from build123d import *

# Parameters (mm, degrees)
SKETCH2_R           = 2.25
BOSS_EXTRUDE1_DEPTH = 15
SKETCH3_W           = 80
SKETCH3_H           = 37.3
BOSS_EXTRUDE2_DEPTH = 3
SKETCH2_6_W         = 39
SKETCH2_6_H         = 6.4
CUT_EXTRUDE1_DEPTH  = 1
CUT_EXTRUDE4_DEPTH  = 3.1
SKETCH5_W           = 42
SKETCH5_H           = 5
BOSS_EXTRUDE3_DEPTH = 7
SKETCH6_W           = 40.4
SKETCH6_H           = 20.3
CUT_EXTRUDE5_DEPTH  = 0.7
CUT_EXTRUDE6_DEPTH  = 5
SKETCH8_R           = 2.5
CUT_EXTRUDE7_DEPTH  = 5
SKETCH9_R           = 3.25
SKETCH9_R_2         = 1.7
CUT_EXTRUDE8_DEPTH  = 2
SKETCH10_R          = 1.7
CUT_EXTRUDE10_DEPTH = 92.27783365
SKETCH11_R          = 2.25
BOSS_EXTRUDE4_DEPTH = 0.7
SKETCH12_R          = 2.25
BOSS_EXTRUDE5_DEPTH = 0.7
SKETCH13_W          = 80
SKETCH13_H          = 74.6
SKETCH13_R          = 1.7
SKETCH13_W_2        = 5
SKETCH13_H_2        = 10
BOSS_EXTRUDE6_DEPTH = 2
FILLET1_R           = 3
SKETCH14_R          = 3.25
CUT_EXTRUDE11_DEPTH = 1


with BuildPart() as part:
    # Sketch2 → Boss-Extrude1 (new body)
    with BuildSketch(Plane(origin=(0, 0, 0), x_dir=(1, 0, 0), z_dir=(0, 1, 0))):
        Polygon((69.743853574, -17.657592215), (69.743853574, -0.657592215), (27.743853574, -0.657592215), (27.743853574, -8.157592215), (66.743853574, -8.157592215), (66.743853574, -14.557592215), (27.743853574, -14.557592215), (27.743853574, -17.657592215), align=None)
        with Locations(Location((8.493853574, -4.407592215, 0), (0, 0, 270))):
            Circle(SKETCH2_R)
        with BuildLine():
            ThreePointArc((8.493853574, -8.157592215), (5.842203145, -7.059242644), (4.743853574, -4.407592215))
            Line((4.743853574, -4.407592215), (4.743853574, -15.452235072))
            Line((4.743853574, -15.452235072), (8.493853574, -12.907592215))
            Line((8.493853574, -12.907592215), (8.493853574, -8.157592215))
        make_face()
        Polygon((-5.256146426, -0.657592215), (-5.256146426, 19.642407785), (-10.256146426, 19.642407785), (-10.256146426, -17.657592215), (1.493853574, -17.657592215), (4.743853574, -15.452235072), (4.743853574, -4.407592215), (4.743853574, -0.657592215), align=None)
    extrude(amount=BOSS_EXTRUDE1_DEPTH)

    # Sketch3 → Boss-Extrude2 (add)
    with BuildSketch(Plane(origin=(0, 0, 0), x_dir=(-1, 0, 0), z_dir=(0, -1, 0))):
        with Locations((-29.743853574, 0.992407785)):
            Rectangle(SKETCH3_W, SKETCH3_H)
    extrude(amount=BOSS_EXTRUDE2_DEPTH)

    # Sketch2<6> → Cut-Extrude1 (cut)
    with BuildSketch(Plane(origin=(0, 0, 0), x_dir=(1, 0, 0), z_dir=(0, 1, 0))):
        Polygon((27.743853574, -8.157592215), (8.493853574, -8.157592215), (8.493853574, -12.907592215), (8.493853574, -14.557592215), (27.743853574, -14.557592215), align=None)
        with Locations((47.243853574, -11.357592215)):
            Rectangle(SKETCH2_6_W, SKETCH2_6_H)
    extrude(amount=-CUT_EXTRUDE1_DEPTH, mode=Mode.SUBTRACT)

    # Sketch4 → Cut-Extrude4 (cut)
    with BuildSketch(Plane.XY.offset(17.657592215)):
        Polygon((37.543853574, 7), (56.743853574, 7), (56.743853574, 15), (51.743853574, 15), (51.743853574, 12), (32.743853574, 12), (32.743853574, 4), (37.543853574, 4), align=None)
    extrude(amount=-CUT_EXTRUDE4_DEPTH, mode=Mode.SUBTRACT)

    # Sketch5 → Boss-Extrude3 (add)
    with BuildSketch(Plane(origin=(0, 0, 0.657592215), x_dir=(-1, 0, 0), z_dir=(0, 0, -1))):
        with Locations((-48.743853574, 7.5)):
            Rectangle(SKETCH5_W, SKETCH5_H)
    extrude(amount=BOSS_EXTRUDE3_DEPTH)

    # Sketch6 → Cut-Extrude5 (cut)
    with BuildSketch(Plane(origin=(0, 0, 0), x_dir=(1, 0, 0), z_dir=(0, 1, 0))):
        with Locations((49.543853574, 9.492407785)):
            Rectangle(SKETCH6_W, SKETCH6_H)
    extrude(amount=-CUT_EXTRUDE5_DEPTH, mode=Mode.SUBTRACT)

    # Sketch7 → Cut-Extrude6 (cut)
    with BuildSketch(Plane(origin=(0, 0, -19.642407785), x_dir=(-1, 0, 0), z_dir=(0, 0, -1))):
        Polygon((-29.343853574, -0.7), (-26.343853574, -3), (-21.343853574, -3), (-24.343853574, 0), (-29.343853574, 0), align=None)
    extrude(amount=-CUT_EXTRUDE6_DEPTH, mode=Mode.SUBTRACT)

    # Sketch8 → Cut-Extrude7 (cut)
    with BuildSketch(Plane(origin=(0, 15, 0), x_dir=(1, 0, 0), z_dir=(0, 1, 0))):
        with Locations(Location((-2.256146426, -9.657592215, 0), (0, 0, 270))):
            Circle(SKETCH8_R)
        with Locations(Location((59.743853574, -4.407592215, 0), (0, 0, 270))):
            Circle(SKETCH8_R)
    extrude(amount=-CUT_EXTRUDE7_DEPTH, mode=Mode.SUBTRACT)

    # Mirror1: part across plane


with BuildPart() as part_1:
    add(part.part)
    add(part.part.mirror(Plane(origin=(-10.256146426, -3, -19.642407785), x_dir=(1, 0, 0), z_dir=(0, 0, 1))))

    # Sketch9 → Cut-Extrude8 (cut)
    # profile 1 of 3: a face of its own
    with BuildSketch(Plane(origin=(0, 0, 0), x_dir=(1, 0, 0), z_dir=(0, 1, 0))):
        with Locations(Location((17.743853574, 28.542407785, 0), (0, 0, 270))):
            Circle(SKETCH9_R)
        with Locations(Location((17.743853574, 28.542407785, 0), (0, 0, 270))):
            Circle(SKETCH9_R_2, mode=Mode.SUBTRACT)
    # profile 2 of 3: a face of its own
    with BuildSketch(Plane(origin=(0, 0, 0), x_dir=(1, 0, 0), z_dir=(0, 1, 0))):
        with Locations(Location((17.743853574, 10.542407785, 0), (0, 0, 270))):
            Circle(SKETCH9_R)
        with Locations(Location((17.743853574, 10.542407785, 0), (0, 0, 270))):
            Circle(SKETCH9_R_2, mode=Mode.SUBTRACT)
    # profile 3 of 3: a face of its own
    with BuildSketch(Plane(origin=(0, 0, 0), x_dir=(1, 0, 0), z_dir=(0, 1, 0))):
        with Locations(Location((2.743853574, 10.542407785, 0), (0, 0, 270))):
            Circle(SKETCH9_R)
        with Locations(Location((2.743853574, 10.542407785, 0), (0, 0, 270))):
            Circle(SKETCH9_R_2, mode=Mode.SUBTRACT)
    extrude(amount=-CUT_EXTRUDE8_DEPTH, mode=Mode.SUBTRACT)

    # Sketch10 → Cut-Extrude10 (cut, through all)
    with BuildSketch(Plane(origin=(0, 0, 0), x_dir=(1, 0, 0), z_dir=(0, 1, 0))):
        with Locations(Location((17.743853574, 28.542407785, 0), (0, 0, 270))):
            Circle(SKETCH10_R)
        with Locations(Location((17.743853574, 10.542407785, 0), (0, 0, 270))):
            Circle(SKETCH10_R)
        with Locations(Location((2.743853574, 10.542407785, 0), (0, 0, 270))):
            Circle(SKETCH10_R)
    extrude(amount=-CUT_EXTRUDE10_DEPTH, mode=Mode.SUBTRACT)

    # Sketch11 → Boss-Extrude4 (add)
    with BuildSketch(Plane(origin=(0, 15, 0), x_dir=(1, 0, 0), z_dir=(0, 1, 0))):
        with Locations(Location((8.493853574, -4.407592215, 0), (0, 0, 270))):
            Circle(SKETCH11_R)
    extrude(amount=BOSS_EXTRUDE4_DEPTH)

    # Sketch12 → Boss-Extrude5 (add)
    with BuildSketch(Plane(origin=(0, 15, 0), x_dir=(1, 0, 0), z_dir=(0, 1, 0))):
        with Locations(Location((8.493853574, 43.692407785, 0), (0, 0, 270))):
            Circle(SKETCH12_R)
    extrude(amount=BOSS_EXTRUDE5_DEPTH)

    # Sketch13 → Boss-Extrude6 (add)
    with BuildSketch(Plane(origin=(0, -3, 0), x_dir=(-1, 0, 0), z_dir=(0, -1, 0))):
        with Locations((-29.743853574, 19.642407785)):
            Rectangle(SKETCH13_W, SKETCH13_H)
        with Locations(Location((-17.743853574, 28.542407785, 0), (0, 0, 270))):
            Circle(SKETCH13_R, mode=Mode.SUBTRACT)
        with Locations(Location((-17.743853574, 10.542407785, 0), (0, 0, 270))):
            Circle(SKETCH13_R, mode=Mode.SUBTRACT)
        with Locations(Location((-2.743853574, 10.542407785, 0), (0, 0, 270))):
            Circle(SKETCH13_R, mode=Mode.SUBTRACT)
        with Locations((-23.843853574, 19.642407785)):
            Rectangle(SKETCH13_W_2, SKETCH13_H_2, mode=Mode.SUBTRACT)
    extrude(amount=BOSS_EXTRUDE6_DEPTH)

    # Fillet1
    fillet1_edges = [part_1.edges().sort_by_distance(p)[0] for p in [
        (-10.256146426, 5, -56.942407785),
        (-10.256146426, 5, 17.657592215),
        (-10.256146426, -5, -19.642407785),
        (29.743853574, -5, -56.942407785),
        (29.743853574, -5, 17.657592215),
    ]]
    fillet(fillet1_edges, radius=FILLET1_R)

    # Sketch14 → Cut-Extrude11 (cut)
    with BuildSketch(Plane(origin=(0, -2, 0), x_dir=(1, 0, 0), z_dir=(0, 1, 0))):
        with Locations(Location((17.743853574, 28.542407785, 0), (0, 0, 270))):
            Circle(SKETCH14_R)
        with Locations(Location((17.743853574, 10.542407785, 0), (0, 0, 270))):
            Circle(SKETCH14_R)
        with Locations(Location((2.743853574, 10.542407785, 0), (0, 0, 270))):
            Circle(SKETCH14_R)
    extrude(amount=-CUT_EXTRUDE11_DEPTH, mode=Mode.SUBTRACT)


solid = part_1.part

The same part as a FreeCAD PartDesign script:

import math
import FreeCAD as App
import Part
import Sketcher
from FreeCAD import Vector
Q = App.Units.Quantity


def edges_at(feature, points):
    """Names of the edges that pass closest to the given points."""
    edges = feature.Shape.Edges
    near = lambda p: min(range(len(edges)), key=lambda i: edges[i].distToShape(Part.Vertex(*p))[0])
    return sorted({f"Edge{near(p) + 1}" for p in points})

doc = App.newDocument("Part")
body = doc.addObject("PartDesign::Body", "Body")
body.AllowCompound = True

# Sketch on XZ plane
sketch1 = body.newObject("Sketcher::SketchObject", "Sketch")
sketch1.AttachmentSupport = (doc.getObject("XZ_Plane"), [""])
sketch1.MapMode = "FlatFace"
sketch1.addGeometry([
    Part.LineSegment(Vector(69.7, 17.7, 0), Vector(69.7, 0.7, 0)),  # 0
    Part.LineSegment(Vector(69.7, 0.7, 0), Vector(27.7, 0.7, 0)),  # 1
    Part.LineSegment(Vector(27.7, 0.7, 0), Vector(27.7, 8.2, 0)),  # 2
    Part.LineSegment(Vector(27.7, 8.2, 0), Vector(66.7, 8.2, 0)),  # 3
    Part.LineSegment(Vector(66.7, 8.2, 0), Vector(66.7, 14.6, 0)),  # 4
    Part.LineSegment(Vector(66.7, 14.6, 0), Vector(27.7, 14.6, 0)),  # 5
    Part.LineSegment(Vector(27.7, 14.6, 0), Vector(27.7, 17.7, 0)),  # 6
    Part.LineSegment(Vector(27.7, 17.7, 0), Vector(69.7, 17.7, 0)),  # 7
    Part.Circle(Vector(8.5, 4.4, 0), Vector(0, 0, 1), 2.2),  # 8
    Part.ArcOfCircle(Part.Circle(Vector(8.5, 4.4, 0), Vector(0, 0, 1), 3.8), math.radians(90), math.radians(180)),  # 9
    Part.LineSegment(Vector(4.7, 4.4, 0), Vector(4.7, 0.7, 0)),  # 10
    Part.LineSegment(Vector(4.7, 0.7, 0), Vector(-5.3, 0.7, 0)),  # 11
    Part.LineSegment(Vector(-5.3, 0.7, 0), Vector(-5.3, -19.6, 0)),  # 12
    Part.LineSegment(Vector(-5.3, -19.6, 0), Vector(-10.3, -19.6, 0)),  # 13
    Part.LineSegment(Vector(-10.3, -19.6, 0), Vector(-10.3, 17.7, 0)),  # 14
    Part.LineSegment(Vector(-10.3, 17.7, 0), Vector(1.5, 17.7, 0)),  # 15
    Part.LineSegment(Vector(1.5, 17.7, 0), Vector(4.7, 15.5, 0)),  # 16
    Part.LineSegment(Vector(4.7, 15.5, 0), Vector(8.5, 12.9, 0)),  # 17
    Part.LineSegment(Vector(8.5, 12.9, 0), Vector(8.5, 8.2, 0)),  # 18
], False)
sketch1.addConstraint([
    Sketcher.Constraint("Coincident", 0, 2, 1, 1),
    Sketcher.Constraint("Coincident", 1, 2, 2, 1),
    Sketcher.Constraint("Coincident", 2, 2, 3, 1),
    Sketcher.Constraint("Coincident", 3, 2, 4, 1),
    Sketcher.Constraint("Coincident", 4, 2, 5, 1),
    Sketcher.Constraint("Coincident", 5, 2, 6, 1),
    Sketcher.Constraint("Coincident", 6, 2, 7, 1),
    Sketcher.Constraint("Coincident", 7, 2, 0, 1),
    Sketcher.Constraint("Tangent", 9, 2, 10, 1),
    Sketcher.Constraint("Coincident", 10, 2, 11, 1),
    Sketcher.Constraint("Coincident", 11, 2, 12, 1),
    Sketcher.Constraint("Coincident", 12, 2, 13, 1),
    Sketcher.Constraint("Coincident", 13, 2, 14, 1),
    Sketcher.Constraint("Coincident", 14, 2, 15, 1),
    Sketcher.Constraint("Coincident", 15, 2, 16, 1),
    Sketcher.Constraint("Coincident", 16, 2, 17, 1),
    Sketcher.Constraint("Coincident", 17, 2, 18, 1),
    Sketcher.Constraint("Coincident", 18, 2, 9, 1),
    Sketcher.Constraint("Vertical", 0),
    Sketcher.Constraint("Horizontal", 1),
    Sketcher.Constraint("Vertical", 2),
    Sketcher.Constraint("Horizontal", 3),
    Sketcher.Constraint("Vertical", 4),
    Sketcher.Constraint("Horizontal", 5),
    Sketcher.Constraint("Vertical", 6),
    Sketcher.Constraint("Horizontal", 7),
    Sketcher.Constraint("Vertical", 10),
    Sketcher.Constraint("Horizontal", 11),
    Sketcher.Constraint("Vertical", 12),
    Sketcher.Constraint("Horizontal", 13),
    Sketcher.Constraint("Vertical", 14),
    Sketcher.Constraint("Horizontal", 15),
    Sketcher.Constraint("Vertical", 18),
    Sketcher.Constraint("Coincident", 9, 3, 8, 3),
    Sketcher.Constraint("Parallel", 16, 17),
    Sketcher.Constraint("Horizontal", 1, 2, 10, 2),
    Sketcher.Constraint("Horizontal", 7, 2, 14, 2),
    Sketcher.Constraint("Horizontal", 3, 2, 18, 2),
    Sketcher.Constraint("Vertical", 2, 2, 5, 2),
    Sketcher.Constraint("Vertical", 10, 2, 16, 2),
    Sketcher.Constraint("Vertical", 9, 3, 17, 2),
    Sketcher.Constraint("Diameter", 8, 4.5),
    Sketcher.Constraint("DistanceX", 1, 2, 1, 1, 42.0),
    Sketcher.Constraint("DistanceX", 3, 1, 3, 2, 39.0),
    Sketcher.Constraint("DistanceX", 11, 2, 11, 1, 10.0),
    Sketcher.Constraint("DistanceX", 13, 2, 13, 1, 5.0),
    Sketcher.Constraint("DistanceY", 0, 2, 0, 1, 17.0),
    Sketcher.Constraint("Radius", 9, 3.75),
    Sketcher.Constraint("DistanceY", 2, 1, 2, 2, 7.5),
    Sketcher.Constraint("DistanceY", 4, 1, 4, 2, 6.4),
    Sketcher.Constraint("DistanceY", 12, 2, 12, 1, 20.3),
    Sketcher.Constraint("DistanceX", 9, 2, 1, 2, 23.0),
    Sketcher.Constraint("DistanceX", 15, 2, 8, 3, 7.0),
    Sketcher.Constraint("DistanceY", 18, 2, 18, 1, 4.75),
    Sketcher.Constraint("DistanceX", -1, 1, 8, 3, 8.493854),
    Sketcher.Constraint("DistanceY", -1, 1, 8, 3, 4.407592),
])
pad1 = body.newObject("PartDesign::Pad", "Pad")
pad1.Profile = sketch1
pad1.Length = 15
pad1.Reversed = True

# Sketch on XZ plane
sketch2 = body.newObject("Sketcher::SketchObject", "Sketch001")
sketch2.AttachmentSupport = (doc.getObject("XZ_Plane"), [""])
sketch2.MapMode = "FlatFace"
sketch2.addGeometry([
    Part.LineSegment(Vector(70, -20, 0), Vector(70, 18, 0)),
    Part.LineSegment(Vector(70, 18, 0), Vector(-10, 18, 0)),
    Part.LineSegment(Vector(-10, 18, 0), Vector(-10, -20, 0)),
    Part.LineSegment(Vector(-10, -20, 0), Vector(70, -20, 0)),
], False)
sketch2.addConstraint([
    Sketcher.Constraint("Coincident", 0, 2, 1, 1),
    Sketcher.Constraint("Coincident", 1, 2, 2, 1),
    Sketcher.Constraint("Coincident", 2, 2, 3, 1),
    Sketcher.Constraint("Coincident", 3, 2, 0, 1),
    Sketcher.Constraint("Vertical", 0),
    Sketcher.Constraint("Horizontal", 1),
    Sketcher.Constraint("Vertical", 2),
    Sketcher.Constraint("Horizontal", 3),
    Sketcher.Constraint("DistanceX", 1, 2, 1, 1, 80.0),
    Sketcher.Constraint("DistanceY", 0, 1, 0, 2, 37.3),
    Sketcher.Constraint("DistanceX", -1, 1, 0, 2, 69.743854),
    Sketcher.Constraint("DistanceY", -1, 1, 0, 2, 17.657592),
])
pad2 = body.newObject("PartDesign::Pad", "Pad001")
pad2.Profile = sketch2
pad2.Length = 3

# Sketch on XZ plane
sketch3 = body.newObject("Sketcher::SketchObject", "Sketch002")
sketch3.AttachmentSupport = (doc.getObject("XZ_Plane"), [""])
sketch3.MapMode = "FlatFace"
sketch3.addGeometry([
    Part.LineSegment(Vector(8, 8, 0), Vector(8, 15, 0)),
    Part.LineSegment(Vector(8, 15, 0), Vector(67, 15, 0)),
    Part.LineSegment(Vector(67, 15, 0), Vector(67, 8, 0)),
    Part.LineSegment(Vector(67, 8, 0), Vector(8, 8, 0)),
], False)
sketch3.addConstraint([
    Sketcher.Constraint("Coincident", 0, 2, 1, 1),
    Sketcher.Constraint("Coincident", 1, 2, 2, 1),
    Sketcher.Constraint("Coincident", 2, 2, 3, 1),
    Sketcher.Constraint("Coincident", 3, 2, 0, 1),
    Sketcher.Constraint("Vertical", 0),
    Sketcher.Constraint("Horizontal", 1),
    Sketcher.Constraint("Vertical", 2),
    Sketcher.Constraint("Horizontal", 3),
    Sketcher.Constraint("DistanceY", 0, 1, 0, 2, 6.4),
    Sketcher.Constraint("DistanceX", 1, 1, 1, 2, 58.25),
    Sketcher.Constraint("DistanceX", -1, 1, 0, 2, 8.493854),
    Sketcher.Constraint("DistanceY", -1, 1, 0, 2, 14.557592),
])
pocket1 = body.newObject("PartDesign::Pocket", "Pocket")
pocket1.Profile = sketch3
pocket1.Length = 1
pocket1.Reversed = True

# Sketch on XY plane
sketch4 = body.newObject("Sketcher::SketchObject", "Sketch003")
sketch4.AttachmentSupport = (doc.getObject("XY_Plane"), [""])
sketch4.MapMode = "FlatFace"
sketch4.AttachmentOffset = App.Placement(Vector(0, 0, 17.657592), App.Rotation())
sketch4.addGeometry([
    Part.LineSegment(Vector(37.5, 7, 0), Vector(56.7, 7, 0)),  # 0
    Part.LineSegment(Vector(56.7, 7, 0), Vector(56.7, 15, 0)),  # 1
    Part.LineSegment(Vector(56.7, 15, 0), Vector(51.7, 15, 0)),  # 2
    Part.LineSegment(Vector(51.7, 15, 0), Vector(51.7, 12, 0)),  # 3
    Part.LineSegment(Vector(51.7, 12, 0), Vector(32.7, 12, 0)),  # 4
    Part.LineSegment(Vector(32.7, 12, 0), Vector(32.7, 4, 0)),  # 5
    Part.LineSegment(Vector(32.7, 4, 0), Vector(37.5, 4, 0)),  # 6
    Part.LineSegment(Vector(37.5, 4, 0), Vector(37.5, 7, 0)),  # 7
], False)
sketch4.addConstraint([
    Sketcher.Constraint("Coincident", 0, 2, 1, 1),
    Sketcher.Constraint("Coincident", 1, 2, 2, 1),
    Sketcher.Constraint("Coincident", 2, 2, 3, 1),
    Sketcher.Constraint("Coincident", 3, 2, 4, 1),
    Sketcher.Constraint("Coincident", 4, 2, 5, 1),
    Sketcher.Constraint("Coincident", 5, 2, 6, 1),
    Sketcher.Constraint("Coincident", 6, 2, 7, 1),
    Sketcher.Constraint("Coincident", 7, 2, 0, 1),
    Sketcher.Constraint("Horizontal", 0),
    Sketcher.Constraint("Vertical", 1),
    Sketcher.Constraint("Horizontal", 2),
    Sketcher.Constraint("Vertical", 3),
    Sketcher.Constraint("Horizontal", 4),
    Sketcher.Constraint("Vertical", 5),
    Sketcher.Constraint("Horizontal", 6),
    Sketcher.Constraint("Vertical", 7),
    Sketcher.Constraint("Equal", 1, 5),
    Sketcher.Constraint("DistanceX", 2, 2, 2, 1, 5.0),
    Sketcher.Constraint("DistanceX", 4, 2, 4, 1, 19.0),
    Sketcher.Constraint("DistanceY", 1, 1, 1, 2, 8.0),
    Sketcher.Constraint("DistanceY", 3, 2, 3, 1, 3.0),
    Sketcher.Constraint("DistanceX", 0, 1, 0, 2, 19.2),
    Sketcher.Constraint("DistanceY", -1, 1, 0, 2, 7.0),
    Sketcher.Constraint("DistanceX", -1, 1, 0, 2, 56.743854),
])
pocket2 = body.newObject("PartDesign::Pocket", "Pocket001")
pocket2.Profile = sketch4
pocket2.Length = 3.1

# Sketch on XY plane
sketch5 = body.newObject("Sketcher::SketchObject", "Sketch004")
sketch5.AttachmentSupport = (doc.getObject("XY_Plane"), [""])
sketch5.MapMode = "FlatFace"
sketch5.AttachmentOffset = App.Placement(Vector(0, 0, 0.657592), App.Rotation())
sketch5.addGeometry([
    Part.LineSegment(Vector(70, 10, 0), Vector(70, 5, 0)),
    Part.LineSegment(Vector(70, 5, 0), Vector(28, 5, 0)),
    Part.LineSegment(Vector(28, 5, 0), Vector(28, 10, 0)),
    Part.LineSegment(Vector(28, 10, 0), Vector(70, 10, 0)),
], False)
sketch5.addConstraint([
    Sketcher.Constraint("Coincident", 0, 2, 1, 1),
    Sketcher.Constraint("Coincident", 1, 2, 2, 1),
    Sketcher.Constraint("Coincident", 2, 2, 3, 1),
    Sketcher.Constraint("Coincident", 3, 2, 0, 1),
    Sketcher.Constraint("Vertical", 0),
    Sketcher.Constraint("Horizontal", 1),
    Sketcher.Constraint("Vertical", 2),
    Sketcher.Constraint("Horizontal", 3),
    Sketcher.Constraint("DistanceX", 1, 2, 1, 1, 42.0),
    Sketcher.Constraint("DistanceY", 0, 2, 0, 1, 5.0),
    Sketcher.Constraint("DistanceY", -1, 1, 0, 2, 5.0),
    Sketcher.Constraint("DistanceX", -1, 1, 0, 2, 69.743854),
])
pad3 = body.newObject("PartDesign::Pad", "Pad002")
pad3.Profile = sketch5
pad3.Length = 7
pad3.Reversed = True

# Sketch on XZ plane
sketch6 = body.newObject("Sketcher::SketchObject", "Sketch005")
sketch6.AttachmentSupport = (doc.getObject("XZ_Plane"), [""])
sketch6.MapMode = "FlatFace"
sketch6.addGeometry([
    Part.LineSegment(Vector(29, -20, 0), Vector(29, 1, 0)),
    Part.LineSegment(Vector(29, 1, 0), Vector(70, 1, 0)),
    Part.LineSegment(Vector(70, 1, 0), Vector(70, -20, 0)),
    Part.LineSegment(Vector(70, -20, 0), Vector(29, -20, 0)),
], False)
sketch6.addConstraint([
    Sketcher.Constraint("Coincident", 0, 2, 1, 1),
    Sketcher.Constraint("Coincident", 1, 2, 2, 1),
    Sketcher.Constraint("Coincident", 2, 2, 3, 1),
    Sketcher.Constraint("Coincident", 3, 2, 0, 1),
    Sketcher.Constraint("Vertical", 0),
    Sketcher.Constraint("Horizontal", 1),
    Sketcher.Constraint("Vertical", 2),
    Sketcher.Constraint("Horizontal", 3),
    Sketcher.Constraint("DistanceX", 1, 1, 1, 2, 40.4),
    Sketcher.Constraint("DistanceY", 0, 1, 0, 2, 20.3),
    Sketcher.Constraint("DistanceX", -1, 1, 0, 2, 29.343854),
    Sketcher.Constraint("DistanceY", -1, 1, 0, 2, 0.657592),
])
pocket3 = body.newObject("PartDesign::Pocket", "Pocket002")
pocket3.Profile = sketch6
pocket3.Length = 0.7
pocket3.Reversed = True

# Sketch on XY plane
sketch7 = body.newObject("Sketcher::SketchObject", "Sketch006")
sketch7.AttachmentSupport = (doc.getObject("XY_Plane"), [""])
sketch7.MapMode = "FlatFace"
sketch7.AttachmentOffset = App.Placement(Vector(0, 0, -19.642408), App.Rotation())
sketch7.addGeometry([
    Part.LineSegment(Vector(29.3, -0.7, 0), Vector(26.3, -3, 0)),  # 0
    Part.LineSegment(Vector(26.3, -3, 0), Vector(21.3, -3, 0)),  # 1
    Part.LineSegment(Vector(21.3, -3, 0), Vector(24.3, 0, 0)),  # 2
    Part.LineSegment(Vector(24.3, 0, 0), Vector(29.3, 0, 0)),  # 3
    Part.LineSegment(Vector(29.3, 0, 0), Vector(29.3, -0.7, 0)),  # 4
], False)
sketch7.addConstraint([
    Sketcher.Constraint("Coincident", 0, 2, 1, 1),
    Sketcher.Constraint("Coincident", 1, 2, 2, 1),
    Sketcher.Constraint("Coincident", 2, 2, 3, 1),
    Sketcher.Constraint("Coincident", 3, 2, 4, 1),
    Sketcher.Constraint("Coincident", 4, 2, 0, 1),
    Sketcher.Constraint("Horizontal", 1),
    Sketcher.Constraint("Horizontal", 3),
    Sketcher.Constraint("Vertical", 4),
    Sketcher.Constraint("PointOnObject", 2, 2, -1),
    Sketcher.Constraint("Equal", 1, 3),
    Sketcher.Constraint("DistanceX", 1, 2, 1, 1, 5.0),
    Sketcher.Constraint("Angle", 2, Q("45 deg")),
    Sketcher.Constraint("DistanceY", 4, 2, 4, 1, 0.7),
    Sketcher.Constraint("DistanceY", 0, 2, -1, 1, 3.0),
    Sketcher.Constraint("DistanceX", -1, 1, 0, 2, 26.343854),
])
pocket4 = body.newObject("PartDesign::Pocket", "Pocket003")
pocket4.Profile = sketch7
pocket4.Length = 5
pocket4.Reversed = True

# Sketch on XZ plane
sketch8 = body.newObject("Sketcher::SketchObject", "Sketch007")
sketch8.AttachmentSupport = (doc.getObject("XZ_Plane"), [""])
sketch8.MapMode = "FlatFace"
sketch8.AttachmentOffset = App.Placement(Vector(0, 0, -15), App.Rotation())
sketch8.addGeometry([
    Part.Circle(Vector(-2.3, 9.7, 0), Vector(0, 0, 1), 2.5),
    Part.Circle(Vector(59.7, 4.4, 0), Vector(0, 0, 1), 2.5),
], False)
sketch8.addConstraint([
    Sketcher.Constraint("Equal", 0, 1),
    Sketcher.Constraint("Diameter", 0, 5.0),
    Sketcher.Constraint("DistanceX", 0, 3, 1, 3, 62.0),
    Sketcher.Constraint("DistanceY", 1, 3, 0, 3, 5.25),
    Sketcher.Constraint("DistanceX", 0, 3, -1, 1, 2.256146),
    Sketcher.Constraint("DistanceY", -1, 1, 0, 3, 9.657592),
])
pocket5 = body.newObject("PartDesign::Pocket", "Pocket004")
pocket5.Profile = sketch8
pocket5.Length = 5
pocket5.Reversed = True
body2 = doc.addObject("PartDesign::Body", "Body001")
doc.recompute()

body2.BaseFeature = body
doc.recompute()

mirroring = doc.addObject("Part::Mirroring", "Mirroring")
mirroring.Source = body
mirroring.Base = Vector(-10.256146, -3, -19.642408)
mirroring.Normal = Vector(0, 0, 1)
body3 = doc.addObject("PartDesign::Body", "Body002")
body3.BaseFeature = mirroring
boolean = body2.newObject("PartDesign::Boolean", "Boolean")
boolean.Type = "Fuse"
boolean.addObjects([body3])
doc.recompute()

# Sketch on XZ plane
sketch9 = body2.newObject("Sketcher::SketchObject", "Sketch008")
sketch9.AttachmentSupport = (doc.getObject("XZ_Plane001"), [""])
sketch9.MapMode = "FlatFace"
sketch9.addGeometry([
    Part.Circle(Vector(17.7, -28.5, 0), Vector(0, 0, 1), 3.2),  # 0
    Part.Circle(Vector(17.7, -28.5, 0), Vector(0, 0, 1), 1.7),  # 1
    Part.Circle(Vector(17.7, -10.5, 0), Vector(0, 0, 1), 3.2),  # 2
    Part.Circle(Vector(17.7, -10.5, 0), Vector(0, 0, 1), 1.7),  # 3
    Part.Circle(Vector(2.7, -10.5, 0), Vector(0, 0, 1), 3.2),  # 4
    Part.Circle(Vector(2.7, -10.5, 0), Vector(0, 0, 1), 1.7),  # 5
], False)
sketch9.addConstraint([
    Sketcher.Constraint("Coincident", 1, 3, 0, 3),
    Sketcher.Constraint("Coincident", 3, 3, 2, 3),
    Sketcher.Constraint("Coincident", 5, 3, 4, 3),
    Sketcher.Constraint("Equal", 0, 2),
    Sketcher.Constraint("Equal", 1, 3),
    Sketcher.Constraint("Equal", 2, 4),
    Sketcher.Constraint("Equal", 3, 5),
    Sketcher.Constraint("Horizontal", 3, 3, 4, 3),
    Sketcher.Constraint("Vertical", 1, 3, 2, 3),
    Sketcher.Constraint("Diameter", 0, 6.5),
    Sketcher.Constraint("Diameter", 1, 3.4),
    Sketcher.Constraint("DistanceY", 0, 3, 2, 3, 18.0),
    Sketcher.Constraint("DistanceX", 4, 3, 2, 3, 15.0),
    Sketcher.Constraint("DistanceX", -1, 1, 0, 3, 17.743854),
    Sketcher.Constraint("DistanceY", 0, 3, -1, 1, 28.542408),
])
pocket6 = body2.newObject("PartDesign::Pocket", "Pocket005")
pocket6.Profile = sketch9
pocket6.Length = 2
pocket6.Reversed = True

# Sketch on XZ plane
sketch10 = body2.newObject("Sketcher::SketchObject", "Sketch009")
sketch10.AttachmentSupport = (doc.getObject("XZ_Plane001"), [""])
sketch10.MapMode = "FlatFace"
sketch10.addGeometry([
    Part.Circle(Vector(17.7, -28.5, 0), Vector(0, 0, 1), 1.7),
    Part.Circle(Vector(17.7, -10.5, 0), Vector(0, 0, 1), 1.7),
    Part.Circle(Vector(2.7, -10.5, 0), Vector(0, 0, 1), 1.7),
], False)
sketch10.addConstraint([
    Sketcher.Constraint("Equal", 0, 1),
    Sketcher.Constraint("Equal", 1, 2),
    Sketcher.Constraint("Horizontal", 1, 3, 2, 3),
    Sketcher.Constraint("Vertical", 0, 3, 1, 3),
    Sketcher.Constraint("Diameter", 0, 3.4),
    Sketcher.Constraint("DistanceY", 0, 3, 1, 3, 18.0),
    Sketcher.Constraint("DistanceX", 2, 3, 1, 3, 15.0),
    Sketcher.Constraint("DistanceX", -1, 1, 0, 3, 17.743854),
    Sketcher.Constraint("DistanceY", 0, 3, -1, 1, 28.542408),
])
pocket7 = body2.newObject("PartDesign::Pocket", "Pocket006")
pocket7.Profile = sketch10
pocket7.Type = "ThroughAll"
pocket7.Reversed = True

# Sketch on XZ plane
sketch11 = body2.newObject("Sketcher::SketchObject", "Sketch010")
sketch11.AttachmentSupport = (doc.getObject("XZ_Plane001"), [""])
sketch11.MapMode = "FlatFace"
sketch11.AttachmentOffset = App.Placement(Vector(0, 0, -15), App.Rotation())
sketch11.addGeometry(Part.Circle(Vector(8.5, 4.4, 0), Vector(0, 0, 1), 2.2), False)
sketch11.addConstraint([
    Sketcher.Constraint("Diameter", 0, 4.5),
    Sketcher.Constraint("DistanceX", -1, 1, 0, 3, 8.493854),
    Sketcher.Constraint("DistanceY", -1, 1, 0, 3, 4.407592),
])
pad4 = body2.newObject("PartDesign::Pad", "Pad003")
pad4.Profile = sketch11
pad4.Length = 0.7
pad4.Reversed = True

# Sketch on XZ plane
sketch12 = body2.newObject("Sketcher::SketchObject", "Sketch011")
sketch12.AttachmentSupport = (doc.getObject("XZ_Plane001"), [""])
sketch12.MapMode = "FlatFace"
sketch12.AttachmentOffset = App.Placement(Vector(0, 0, -15), App.Rotation())
sketch12.addGeometry(Part.Circle(Vector(8.5, -43.7, 0), Vector(0, 0, 1), 2.2), False)
sketch12.addConstraint([
    Sketcher.Constraint("Diameter", 0, 4.5),
    Sketcher.Constraint("DistanceX", -1, 1, 0, 3, 8.493854),
    Sketcher.Constraint("DistanceY", 0, 3, -1, 1, 43.692408),
])
pad5 = body2.newObject("PartDesign::Pad", "Pad004")
pad5.Profile = sketch12
pad5.Length = 0.7
pad5.Reversed = True

# Sketch on XZ plane
sketch13 = body2.newObject("Sketcher::SketchObject", "Sketch012")
sketch13.AttachmentSupport = (doc.getObject("XZ_Plane001"), [""])
sketch13.MapMode = "FlatFace"
sketch13.AttachmentOffset = App.Placement(Vector(0, 0, 3), App.Rotation())
sketch13.addGeometry([
    Part.LineSegment(Vector(69.7, -56.9, 0), Vector(69.7, 17.7, 0)),  # 0
    Part.LineSegment(Vector(69.7, 17.7, 0), Vector(-10.3, 17.7, 0)),  # 1
    Part.LineSegment(Vector(-10.3, 17.7, 0), Vector(-10.3, -56.9, 0)),  # 2
    Part.LineSegment(Vector(-10.3, -56.9, 0), Vector(69.7, -56.9, 0)),  # 3
    Part.Circle(Vector(17.7, -10.5, 0), Vector(0, 0, 1), 1.7),  # 4
    Part.Circle(Vector(2.7, -10.5, 0), Vector(0, 0, 1), 1.7),  # 5
    Part.LineSegment(Vector(21.3, -14.6, 0), Vector(26.3, -14.6, 0)),  # 6
    Part.LineSegment(Vector(26.3, -14.6, 0), Vector(26.3, -24.6, 0)),  # 7
    Part.LineSegment(Vector(26.3, -24.6, 0), Vector(21.3, -24.6, 0)),  # 8
    Part.LineSegment(Vector(21.3, -24.6, 0), Vector(21.3, -14.6, 0)),  # 9
    Part.Circle(Vector(17.7, -28.5, 0), Vector(0, 0, 1), 1.7),  # 10
], False)
sketch13.addConstraint([
    Sketcher.Constraint("Coincident", 0, 2, 1, 1),
    Sketcher.Constraint("Coincident", 1, 2, 2, 1),
    Sketcher.Constraint("Coincident", 2, 2, 3, 1),
    Sketcher.Constraint("Coincident", 3, 2, 0, 1),
    Sketcher.Constraint("Coincident", 6, 2, 7, 1),
    Sketcher.Constraint("Coincident", 7, 2, 8, 1),
    Sketcher.Constraint("Coincident", 8, 2, 9, 1),
    Sketcher.Constraint("Coincident", 9, 2, 6, 1),
    Sketcher.Constraint("Vertical", 0),
    Sketcher.Constraint("Horizontal", 1),
    Sketcher.Constraint("Vertical", 2),
    Sketcher.Constraint("Horizontal", 3),
    Sketcher.Constraint("Horizontal", 6),
    Sketcher.Constraint("Vertical", 7),
    Sketcher.Constraint("Horizontal", 8),
    Sketcher.Constraint("Vertical", 9),
    Sketcher.Constraint("Equal", 4, 5),
    Sketcher.Constraint("Equal", 5, 10),
    Sketcher.Constraint("Horizontal", 4, 3, 5, 3),
    Sketcher.Constraint("Vertical", 4, 3, 10, 3),
    Sketcher.Constraint("Diameter", 4, 3.4),
    Sketcher.Constraint("DistanceX", 1, 2, 1, 1, 80.0),
    Sketcher.Constraint("DistanceX", 6, 1, 6, 2, 5.0),
    Sketcher.Constraint("DistanceY", 7, 2, 7, 1, 10.0),
    Sketcher.Constraint("DistanceY", 0, 1, 0, 2, 74.6),
    Sketcher.Constraint("DistanceX", 5, 3, 4, 3, 15.0),
    Sketcher.Constraint("DistanceY", 10, 3, 4, 3, 18.0),
    Sketcher.Constraint("DistanceX", 4, 3, 0, 2, 52.0),
    Sketcher.Constraint("DistanceY", 4, 3, 0, 2, 28.2),
    Sketcher.Constraint("DistanceX", 4, 3, 6, 2, 8.6),
    Sketcher.Constraint("DistanceY", 6, 2, 4, 3, 4.1),
    Sketcher.Constraint("DistanceX", -1, 1, 4, 3, 17.743854),
    Sketcher.Constraint("DistanceY", 4, 3, -1, 1, 10.542408),
])
pad6 = body2.newObject("PartDesign::Pad", "Pad005")
pad6.Profile = sketch13
pad6.Length = 2
doc.recompute()

fillet = body2.newObject("PartDesign::Fillet", "Fillet")
fillet.Base = (pad6, edges_at(pad6, [
    (-10.256, 5, -56.942),
    (-10.256, 5, 17.658),
    (-10.256, -5, -19.642),
    (29.744, -5, -56.942),
    (29.744, -5, 17.658),
]))
fillet.Radius = 3

# Sketch on XZ plane
sketch14 = body2.newObject("Sketcher::SketchObject", "Sketch013")
sketch14.AttachmentSupport = (doc.getObject("XZ_Plane001"), [""])
sketch14.MapMode = "FlatFace"
sketch14.AttachmentOffset = App.Placement(Vector(0, 0, 2), App.Rotation())
sketch14.addGeometry([
    Part.Circle(Vector(17.7, -28.5, 0), Vector(0, 0, 1), 3.2),
    Part.Circle(Vector(17.7, -10.5, 0), Vector(0, 0, 1), 3.2),
    Part.Circle(Vector(2.7, -10.5, 0), Vector(0, 0, 1), 3.2),
], False)
sketch14.addConstraint([
    Sketcher.Constraint("Equal", 0, 1),
    Sketcher.Constraint("Equal", 1, 2),
    Sketcher.Constraint("Horizontal", 1, 3, 2, 3),
    Sketcher.Constraint("Vertical", 0, 3, 1, 3),
    Sketcher.Constraint("Diameter", 0, 6.5),
    Sketcher.Constraint("DistanceY", 0, 3, 1, 3, 18.0),
    Sketcher.Constraint("DistanceX", 2, 3, 1, 3, 15.0),
    Sketcher.Constraint("DistanceX", -1, 1, 0, 3, 17.743854),
    Sketcher.Constraint("DistanceY", 0, 3, -1, 1, 28.542408),
])
pocket8 = body2.newObject("PartDesign::Pocket", "Pocket007")
pocket8.Profile = sketch14
pocket8.Length = 1
pocket8.Reversed = True
mirroring.Visibility = False

doc.recompute()
